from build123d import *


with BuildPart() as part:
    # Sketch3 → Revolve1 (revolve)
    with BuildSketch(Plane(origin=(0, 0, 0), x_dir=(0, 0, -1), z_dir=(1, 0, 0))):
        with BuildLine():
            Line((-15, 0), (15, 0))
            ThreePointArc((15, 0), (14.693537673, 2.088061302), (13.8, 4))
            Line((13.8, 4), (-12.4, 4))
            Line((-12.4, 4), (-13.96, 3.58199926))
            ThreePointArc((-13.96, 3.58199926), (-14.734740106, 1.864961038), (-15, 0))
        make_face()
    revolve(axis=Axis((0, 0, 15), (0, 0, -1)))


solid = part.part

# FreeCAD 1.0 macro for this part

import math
import FreeCAD as App
import Part
import Sketcher

V = App.Vector
Q = App.Units.Quantity

doc = App.newDocument("Part")
body = doc.addObject("PartDesign::Body", "Body")

sketch1 = body.newObject("Sketcher::SketchObject", "Sketch")
sketch1.AttachmentSupport = (doc.getObject("YZ_Plane"), [""])
sketch1.MapMode = "FlatFace"
sketch1.addGeometry([
    Part.LineSegment(V(0, 15, 0), V(0, -15, 0)),
    Part.ArcOfCircle(Part.Circle(V(0, -7.7, 0), V(0, 0, 1), 7.3), math.radians(-90), math.radians(-57)),
    Part.LineSegment(V(4, -13.8, 0), V(4, 12.4, 0)),
    Part.LineSegment(V(4, 12.4, 0), V(3.6, 14, 0)),
    Part.ArcOfCircle(Part.Circle(V(0, 8.3, 0), V(0, 0, 1), 6.7), math.radians(58), math.radians(90)),
], False)
sketch1.addConstraint([
    Sketcher.Constraint("Coincident", 0, 2, 1, 1),
    Sketcher.Constraint("Coincident", 1, 2, 2, 1),
    Sketcher.Constraint("Coincident", 2, 2, 3, 1),
    Sketcher.Constraint("Coincident", 3, 2, 4, 1),
    Sketcher.Constraint("Coincident", 4, 2, 0, 1),
    Sketcher.Constraint("Vertical", 0),
    Sketcher.Constraint("Vertical", 2),
    Sketcher.Constraint("Symmetric", 0, 2, 4, 2, -1, 1),
    Sketcher.Constraint("PointOnObject", 1, 3, -2),
    Sketcher.Constraint("PointOnObject", 4, 3, -2),
    Sketcher.Constraint("DistanceY", 0, 2, 0, 1, Q("30 mm")),
    Sketcher.Constraint("Angle", 3, Q("105 deg")),
    Sketcher.Constraint("DistanceY", 2, 1, 2, 2, Q("26.2 mm")),
    Sketcher.Constraint("DistanceX", -1, 1, 1, 2, Q("4 mm")),
    Sketcher.Constraint("DistanceY", 1, 2, -1, 1, Q("13.8 mm")),
    Sketcher.Constraint("DistanceY", -1, 1, 3, 2, Q("13.96 mm")),
])
revolution = body.newObject("PartDesign::Revolution", "Revolution")
revolution.Profile = sketch1
revolution.ReferenceAxis = (sketch1, ["V_Axis"])
revolution.Angle = 360

doc.recompute()
